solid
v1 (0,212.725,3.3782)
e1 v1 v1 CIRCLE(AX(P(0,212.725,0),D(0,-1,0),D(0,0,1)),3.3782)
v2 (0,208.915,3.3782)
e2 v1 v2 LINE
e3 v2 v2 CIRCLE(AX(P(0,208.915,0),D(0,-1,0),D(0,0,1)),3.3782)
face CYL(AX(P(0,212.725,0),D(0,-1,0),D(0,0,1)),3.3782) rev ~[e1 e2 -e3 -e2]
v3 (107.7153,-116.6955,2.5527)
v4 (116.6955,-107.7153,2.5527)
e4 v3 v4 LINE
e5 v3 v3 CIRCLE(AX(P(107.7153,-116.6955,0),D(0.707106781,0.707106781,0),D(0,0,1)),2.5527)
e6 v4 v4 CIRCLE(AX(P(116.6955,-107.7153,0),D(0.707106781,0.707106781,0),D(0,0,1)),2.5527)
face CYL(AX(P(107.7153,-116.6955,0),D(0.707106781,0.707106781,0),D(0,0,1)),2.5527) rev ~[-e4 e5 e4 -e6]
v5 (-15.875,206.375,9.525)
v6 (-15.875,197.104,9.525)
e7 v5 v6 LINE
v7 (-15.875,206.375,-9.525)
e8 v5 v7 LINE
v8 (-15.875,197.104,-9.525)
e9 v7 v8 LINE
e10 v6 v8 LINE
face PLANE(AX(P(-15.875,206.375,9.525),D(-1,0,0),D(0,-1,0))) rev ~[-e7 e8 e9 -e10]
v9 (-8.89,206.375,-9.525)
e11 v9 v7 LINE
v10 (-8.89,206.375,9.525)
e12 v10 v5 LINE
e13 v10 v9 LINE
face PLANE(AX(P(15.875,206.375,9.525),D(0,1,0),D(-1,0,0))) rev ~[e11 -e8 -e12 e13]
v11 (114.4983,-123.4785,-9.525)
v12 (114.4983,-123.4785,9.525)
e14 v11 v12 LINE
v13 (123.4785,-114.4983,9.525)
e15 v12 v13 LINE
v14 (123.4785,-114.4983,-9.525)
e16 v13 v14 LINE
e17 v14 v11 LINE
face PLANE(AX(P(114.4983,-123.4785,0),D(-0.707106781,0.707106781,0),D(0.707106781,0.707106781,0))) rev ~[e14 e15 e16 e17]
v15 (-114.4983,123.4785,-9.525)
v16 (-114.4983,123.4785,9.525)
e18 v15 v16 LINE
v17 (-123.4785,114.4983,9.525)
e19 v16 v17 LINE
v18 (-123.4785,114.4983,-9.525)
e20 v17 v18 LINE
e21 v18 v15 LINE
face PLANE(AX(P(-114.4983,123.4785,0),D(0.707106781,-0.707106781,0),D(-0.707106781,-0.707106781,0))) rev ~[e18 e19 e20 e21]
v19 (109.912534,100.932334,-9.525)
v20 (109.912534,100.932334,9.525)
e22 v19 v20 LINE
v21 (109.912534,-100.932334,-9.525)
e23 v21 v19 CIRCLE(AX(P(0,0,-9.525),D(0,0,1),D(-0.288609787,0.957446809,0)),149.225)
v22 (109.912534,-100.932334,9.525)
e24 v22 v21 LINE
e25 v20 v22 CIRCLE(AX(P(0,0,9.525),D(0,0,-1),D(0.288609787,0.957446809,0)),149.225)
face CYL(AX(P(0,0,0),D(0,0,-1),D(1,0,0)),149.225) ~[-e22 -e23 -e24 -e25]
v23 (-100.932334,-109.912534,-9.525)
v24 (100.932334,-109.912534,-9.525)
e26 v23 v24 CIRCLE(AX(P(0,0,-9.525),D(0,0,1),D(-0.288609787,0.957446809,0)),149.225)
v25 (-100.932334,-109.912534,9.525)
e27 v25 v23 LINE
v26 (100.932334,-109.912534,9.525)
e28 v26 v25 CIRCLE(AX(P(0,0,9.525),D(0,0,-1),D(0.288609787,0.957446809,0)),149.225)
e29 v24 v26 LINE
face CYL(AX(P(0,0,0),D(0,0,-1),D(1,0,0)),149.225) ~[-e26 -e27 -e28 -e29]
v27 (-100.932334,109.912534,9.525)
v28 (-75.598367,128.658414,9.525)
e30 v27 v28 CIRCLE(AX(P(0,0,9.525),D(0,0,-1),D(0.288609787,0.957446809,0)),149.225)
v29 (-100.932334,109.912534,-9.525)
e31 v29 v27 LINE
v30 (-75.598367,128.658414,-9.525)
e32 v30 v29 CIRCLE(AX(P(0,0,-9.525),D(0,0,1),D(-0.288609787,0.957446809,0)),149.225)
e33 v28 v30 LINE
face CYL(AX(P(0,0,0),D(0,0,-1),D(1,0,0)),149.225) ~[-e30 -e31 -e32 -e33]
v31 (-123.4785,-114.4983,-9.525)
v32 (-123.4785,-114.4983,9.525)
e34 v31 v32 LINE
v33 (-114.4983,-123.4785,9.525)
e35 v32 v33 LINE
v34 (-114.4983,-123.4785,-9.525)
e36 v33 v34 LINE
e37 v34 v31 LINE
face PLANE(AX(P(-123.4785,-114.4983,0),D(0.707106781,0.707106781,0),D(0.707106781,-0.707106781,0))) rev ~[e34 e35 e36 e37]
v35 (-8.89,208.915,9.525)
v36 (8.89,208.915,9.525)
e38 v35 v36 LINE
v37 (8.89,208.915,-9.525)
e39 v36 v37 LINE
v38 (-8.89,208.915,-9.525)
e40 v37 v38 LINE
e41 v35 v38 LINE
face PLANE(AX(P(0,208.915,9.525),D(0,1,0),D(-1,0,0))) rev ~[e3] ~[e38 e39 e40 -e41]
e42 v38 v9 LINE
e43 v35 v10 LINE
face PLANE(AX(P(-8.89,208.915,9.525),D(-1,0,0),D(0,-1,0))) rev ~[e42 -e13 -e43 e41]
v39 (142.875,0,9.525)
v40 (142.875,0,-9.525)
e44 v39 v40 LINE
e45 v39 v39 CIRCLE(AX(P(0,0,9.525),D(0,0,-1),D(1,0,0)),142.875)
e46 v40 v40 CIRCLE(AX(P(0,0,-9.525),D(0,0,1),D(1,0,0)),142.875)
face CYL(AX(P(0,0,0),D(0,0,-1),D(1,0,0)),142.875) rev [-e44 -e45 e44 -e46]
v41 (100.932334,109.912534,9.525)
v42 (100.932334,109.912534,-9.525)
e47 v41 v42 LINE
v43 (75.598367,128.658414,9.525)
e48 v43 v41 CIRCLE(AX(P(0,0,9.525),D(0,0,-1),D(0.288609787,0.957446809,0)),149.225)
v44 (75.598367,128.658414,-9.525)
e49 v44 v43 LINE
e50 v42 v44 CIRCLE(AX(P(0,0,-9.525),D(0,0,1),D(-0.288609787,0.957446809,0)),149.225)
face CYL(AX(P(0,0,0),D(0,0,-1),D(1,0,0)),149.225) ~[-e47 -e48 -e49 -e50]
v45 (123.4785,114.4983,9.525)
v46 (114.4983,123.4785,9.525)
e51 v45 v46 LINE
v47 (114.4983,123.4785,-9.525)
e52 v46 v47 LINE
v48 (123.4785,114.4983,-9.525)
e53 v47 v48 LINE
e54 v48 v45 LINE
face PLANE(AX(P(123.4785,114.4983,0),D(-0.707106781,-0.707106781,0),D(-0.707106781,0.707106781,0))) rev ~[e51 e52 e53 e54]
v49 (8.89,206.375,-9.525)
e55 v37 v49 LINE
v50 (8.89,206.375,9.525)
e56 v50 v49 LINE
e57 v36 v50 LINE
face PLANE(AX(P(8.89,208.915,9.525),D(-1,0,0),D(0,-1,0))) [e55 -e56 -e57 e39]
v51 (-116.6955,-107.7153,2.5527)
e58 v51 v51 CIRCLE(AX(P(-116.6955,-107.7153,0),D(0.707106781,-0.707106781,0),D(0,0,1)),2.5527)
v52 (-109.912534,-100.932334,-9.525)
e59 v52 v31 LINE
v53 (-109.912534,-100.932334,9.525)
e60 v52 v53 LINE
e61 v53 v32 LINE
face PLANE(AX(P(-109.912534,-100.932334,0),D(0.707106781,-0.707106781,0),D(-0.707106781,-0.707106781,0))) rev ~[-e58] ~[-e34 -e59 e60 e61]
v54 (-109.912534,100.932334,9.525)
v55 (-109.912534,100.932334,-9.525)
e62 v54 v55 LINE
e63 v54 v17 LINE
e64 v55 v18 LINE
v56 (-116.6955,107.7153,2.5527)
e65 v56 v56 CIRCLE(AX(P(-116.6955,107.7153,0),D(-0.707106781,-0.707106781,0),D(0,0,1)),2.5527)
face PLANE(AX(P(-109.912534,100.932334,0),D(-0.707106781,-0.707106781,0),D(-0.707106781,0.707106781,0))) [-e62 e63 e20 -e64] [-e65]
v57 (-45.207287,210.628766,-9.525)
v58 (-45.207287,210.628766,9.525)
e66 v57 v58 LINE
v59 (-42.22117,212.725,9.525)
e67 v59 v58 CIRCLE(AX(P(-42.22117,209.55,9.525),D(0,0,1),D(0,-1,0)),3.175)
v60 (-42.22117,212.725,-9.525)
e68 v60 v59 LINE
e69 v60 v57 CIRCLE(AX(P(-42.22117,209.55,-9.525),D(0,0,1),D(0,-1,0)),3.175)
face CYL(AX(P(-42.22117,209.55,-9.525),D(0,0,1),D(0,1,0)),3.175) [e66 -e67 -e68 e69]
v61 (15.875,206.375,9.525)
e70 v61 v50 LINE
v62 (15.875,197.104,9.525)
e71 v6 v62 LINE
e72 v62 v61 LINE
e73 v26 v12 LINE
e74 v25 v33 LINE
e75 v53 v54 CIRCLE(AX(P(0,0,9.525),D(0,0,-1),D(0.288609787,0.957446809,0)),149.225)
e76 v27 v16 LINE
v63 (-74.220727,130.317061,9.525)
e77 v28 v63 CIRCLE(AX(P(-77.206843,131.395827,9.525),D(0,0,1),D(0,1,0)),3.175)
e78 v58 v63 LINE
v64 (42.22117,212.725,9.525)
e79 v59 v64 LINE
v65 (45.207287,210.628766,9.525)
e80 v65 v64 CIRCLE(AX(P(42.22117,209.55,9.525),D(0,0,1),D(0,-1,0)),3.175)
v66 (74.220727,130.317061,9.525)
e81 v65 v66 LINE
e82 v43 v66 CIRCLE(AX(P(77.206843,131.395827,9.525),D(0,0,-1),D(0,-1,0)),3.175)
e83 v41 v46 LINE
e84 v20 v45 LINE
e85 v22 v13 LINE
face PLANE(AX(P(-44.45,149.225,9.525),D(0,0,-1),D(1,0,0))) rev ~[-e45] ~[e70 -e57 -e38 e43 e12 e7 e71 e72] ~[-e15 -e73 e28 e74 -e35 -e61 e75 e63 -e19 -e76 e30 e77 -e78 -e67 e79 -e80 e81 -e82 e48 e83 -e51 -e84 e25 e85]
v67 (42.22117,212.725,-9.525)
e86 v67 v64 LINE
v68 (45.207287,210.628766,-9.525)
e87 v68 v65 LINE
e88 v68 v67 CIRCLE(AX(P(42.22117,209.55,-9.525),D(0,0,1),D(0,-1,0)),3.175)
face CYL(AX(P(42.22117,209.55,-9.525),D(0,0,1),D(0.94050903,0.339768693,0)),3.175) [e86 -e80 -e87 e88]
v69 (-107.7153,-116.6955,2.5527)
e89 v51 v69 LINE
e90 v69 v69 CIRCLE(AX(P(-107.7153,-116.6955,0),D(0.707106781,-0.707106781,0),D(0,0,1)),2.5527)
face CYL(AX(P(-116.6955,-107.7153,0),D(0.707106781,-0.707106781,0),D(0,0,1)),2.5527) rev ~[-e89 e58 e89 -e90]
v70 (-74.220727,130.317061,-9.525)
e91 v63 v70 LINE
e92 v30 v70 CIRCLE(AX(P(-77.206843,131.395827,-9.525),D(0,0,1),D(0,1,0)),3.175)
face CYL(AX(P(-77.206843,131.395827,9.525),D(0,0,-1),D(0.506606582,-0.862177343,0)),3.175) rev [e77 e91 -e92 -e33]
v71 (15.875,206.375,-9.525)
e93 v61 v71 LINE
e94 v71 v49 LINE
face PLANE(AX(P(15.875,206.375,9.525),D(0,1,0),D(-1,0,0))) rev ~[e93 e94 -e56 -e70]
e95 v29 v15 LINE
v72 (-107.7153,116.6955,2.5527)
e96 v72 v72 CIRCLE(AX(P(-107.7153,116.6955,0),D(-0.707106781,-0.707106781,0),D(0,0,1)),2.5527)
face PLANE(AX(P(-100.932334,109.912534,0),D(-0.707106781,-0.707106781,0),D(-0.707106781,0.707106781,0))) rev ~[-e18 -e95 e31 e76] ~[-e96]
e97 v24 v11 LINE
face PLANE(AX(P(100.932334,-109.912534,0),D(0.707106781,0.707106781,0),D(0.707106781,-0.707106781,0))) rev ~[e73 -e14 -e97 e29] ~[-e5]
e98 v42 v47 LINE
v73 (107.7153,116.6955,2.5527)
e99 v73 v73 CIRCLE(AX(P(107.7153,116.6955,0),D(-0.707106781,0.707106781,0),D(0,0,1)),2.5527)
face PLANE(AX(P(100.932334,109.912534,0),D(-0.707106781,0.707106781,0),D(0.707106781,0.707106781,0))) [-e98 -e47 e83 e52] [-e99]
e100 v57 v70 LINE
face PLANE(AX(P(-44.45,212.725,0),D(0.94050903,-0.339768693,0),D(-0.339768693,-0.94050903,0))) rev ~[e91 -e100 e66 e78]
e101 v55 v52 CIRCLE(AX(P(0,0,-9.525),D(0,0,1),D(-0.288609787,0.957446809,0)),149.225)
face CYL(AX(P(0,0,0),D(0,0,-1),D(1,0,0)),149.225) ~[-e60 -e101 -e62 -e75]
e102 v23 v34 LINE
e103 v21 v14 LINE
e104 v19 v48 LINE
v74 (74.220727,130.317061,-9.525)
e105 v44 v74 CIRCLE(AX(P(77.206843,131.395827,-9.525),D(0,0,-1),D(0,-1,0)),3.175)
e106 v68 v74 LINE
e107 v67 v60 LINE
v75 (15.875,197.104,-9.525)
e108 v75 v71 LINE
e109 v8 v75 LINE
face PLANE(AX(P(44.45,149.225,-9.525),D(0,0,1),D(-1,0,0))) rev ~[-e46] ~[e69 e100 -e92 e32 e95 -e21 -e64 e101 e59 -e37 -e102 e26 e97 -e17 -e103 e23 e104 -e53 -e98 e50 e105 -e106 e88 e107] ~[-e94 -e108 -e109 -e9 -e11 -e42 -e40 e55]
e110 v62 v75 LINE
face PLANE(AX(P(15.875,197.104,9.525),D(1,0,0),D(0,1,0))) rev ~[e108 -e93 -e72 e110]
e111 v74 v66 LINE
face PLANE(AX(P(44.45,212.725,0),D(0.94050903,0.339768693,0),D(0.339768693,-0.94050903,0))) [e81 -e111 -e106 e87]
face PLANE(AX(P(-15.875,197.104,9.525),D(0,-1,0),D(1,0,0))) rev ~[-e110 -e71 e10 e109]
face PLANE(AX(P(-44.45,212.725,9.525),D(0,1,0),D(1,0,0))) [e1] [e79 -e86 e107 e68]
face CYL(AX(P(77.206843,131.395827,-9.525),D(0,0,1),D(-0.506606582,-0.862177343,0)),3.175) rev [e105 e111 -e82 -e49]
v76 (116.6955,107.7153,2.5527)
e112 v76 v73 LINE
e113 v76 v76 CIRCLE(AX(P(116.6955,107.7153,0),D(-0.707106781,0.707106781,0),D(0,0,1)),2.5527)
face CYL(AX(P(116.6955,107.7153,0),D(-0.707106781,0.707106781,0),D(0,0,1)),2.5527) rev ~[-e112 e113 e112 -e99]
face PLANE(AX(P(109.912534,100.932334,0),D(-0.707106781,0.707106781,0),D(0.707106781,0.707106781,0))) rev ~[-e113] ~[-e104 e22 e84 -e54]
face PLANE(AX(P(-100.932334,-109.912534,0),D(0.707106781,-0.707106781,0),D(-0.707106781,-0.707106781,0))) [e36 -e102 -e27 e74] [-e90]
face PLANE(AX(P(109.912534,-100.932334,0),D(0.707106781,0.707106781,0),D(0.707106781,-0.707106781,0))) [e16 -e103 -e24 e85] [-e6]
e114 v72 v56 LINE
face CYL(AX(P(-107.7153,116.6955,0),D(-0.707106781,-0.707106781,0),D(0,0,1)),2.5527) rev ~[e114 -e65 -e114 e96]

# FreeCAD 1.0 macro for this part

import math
import FreeCAD as App
import Part
import Sketcher

V = App.Vector
Q = App.Units.Quantity


def edges_at(feature, points):
    """Names of the edges that pass closest to the given points."""
    edges = feature.Shape.Edges
    near = lambda p: min(range(len(edges)), key=lambda i: edges[i].distToShape(Part.Vertex(*p))[0])
    return sorted({f"Edge{near(p) + 1}" for p in points})


def add_polygon(sketch, points):
    """Adds a closed chain of lines whose ends are joined by coincident constraints."""
    first, n = sketch.GeometryCount, len(points)
    for a, b in zip(points, points[1:] + points[:1]):
        sketch.addGeometry(Part.LineSegment(App.Vector(*a, 0), App.Vector(*b, 0)), False)
    for i in range(n):
        sketch.addConstraint(Sketcher.Constraint("Coincident", first + i, 2, first + (i + 1) % n, 1))

doc = App.newDocument("Part")
body = doc.addObject("PartDesign::Body", "Body")

# Sketch on XY plane
sketch1 = body.newObject("Sketcher::SketchObject", "Sketch")
sketch1.AttachmentSupport = (doc.getObject("XY_Plane"), [""])
sketch1.MapMode = "FlatFace"
sketch1.addGeometry([
    Part.Circle(V(0, 0, 0), V(0, 0, 1), 149),
    Part.Circle(V(0, 0, 0), V(0, 0, 1), 143),
], False)
sketch1.addConstraint([
    Sketcher.Constraint("Coincident", 0, 3, -1, 1),
    Sketcher.Constraint("Coincident", 1, 3, -1, 1),
    Sketcher.Constraint("Diameter", 0, Q("11.75 in")),
    Sketcher.Constraint("Diameter", 1, Q("11.25 in")),
])
pad1 = body.newObject("PartDesign::Pad", "Pad")
pad1.Profile = sketch1
pad1.Length = Q("0.75 in")
pad1.Midplane = True

# Sketch on XY plane
sketch2 = body.newObject("Sketcher::SketchObject", "Sketch001")
sketch2.AttachmentSupport = (doc.getObject("XY_Plane"), [""])
sketch2.MapMode = "FlatFace"
add_polygon(sketch2, [(-44, 143), (44, 143), (44, 149), (-44, 149)])  # lines 0-3
sketch2.addConstraint([
    Sketcher.Constraint("Horizontal", 0),
    Sketcher.Constraint("Vertical", 1),
    Sketcher.Constraint("Horizontal", 2),
    Sketcher.Constraint("Vertical", 3),
    Sketcher.Constraint("DistanceY", 1, 1, 1, 2, Q("0.25 in")),
    Sketcher.Constraint("DistanceX", -1, 1, 0, 2, Q("1.75 in")),
    Sketcher.Constraint("DistanceX", 2, 2, -1, 1, Q("1.75 in")),
    Sketcher.Constraint("DistanceY", -1, 1, 0, 2, Q("5.625 in")),
])
pad2 = body.newObject("PartDesign::Pad", "Pad001")
pad2.Profile = sketch2
pad2.Length = Q("0.75 in")
pad2.Midplane = True

# Sketch on XZ plane
sketch3 = body.newObject("Sketcher::SketchObject", "Sketch002")
sketch3.AttachmentSupport = (doc.getObject("XZ_Plane"), [""])
sketch3.MapMode = "FlatFace"
sketch3.AttachmentOffset = App.Placement(V(0, 0, -5.875 * 25.4), App.Rotation())
add_polygon(sketch3, [(44, -10), (-44, -10), (-44, 10), (44, 10)])  # lines 0-3
sketch3.addConstraint([
    Sketcher.Constraint("Horizontal", 0),
    Sketcher.Constraint("Vertical", 1),
    Sketcher.Constraint("Horizontal", 2),
    Sketcher.Constraint("Vertical", 3),
    Sketcher.Constraint("Symmetric", 0, 2, 2, 2, -1, 1),
    Sketcher.Constraint("DistanceX", 0, 2, 0, 1, Q("3.5 in")),
    Sketcher.Constraint("DistanceY", 1, 1, 1, 2, Q("0.75 in")),
])
pad3 = body.newObject("PartDesign::Pad", "Pad002")
pad3.Profile = sketch3
pad3.Length = Q("2.5 in")
pad3.Reversed = True

# Sketch on XY plane
sketch4 = body.newObject("Sketcher::SketchObject", "Sketch003")
sketch4.AttachmentSupport = (doc.getObject("XY_Plane"), [""])
sketch4.MapMode = "FlatFace"
sketch4.AttachmentOffset = App.Placement(V(0, 0, 0.375 * 25.4), App.Rotation())
add_polygon(sketch4, [(-16, 206), (-16, 197), (16, 197), (16, 206)])  # lines 0-3
sketch4.addConstraint([
    Sketcher.Constraint("Vertical", 0),
    Sketcher.Constraint("Horizontal", 1),
    Sketcher.Constraint("Vertical", 2),
    Sketcher.Constraint("Horizontal", 3),
    Sketcher.Constraint("DistanceX", 1, 1, 1, 2, Q("1.25 in")),
    Sketcher.Constraint("DistanceY", 0, 2, 0, 1, Q("0.365 in")),
    Sketcher.Constraint("DistanceY", -1, 1, 0, 2, Q("7.76 in")),
    Sketcher.Constraint("DistanceX", 0, 2, -1, 1, Q("0.625 in")),
])
pocket1 = body.newObject("PartDesign::Pocket", "Pocket")
pocket1.Profile = sketch4
pocket1.Type = "ThroughAll"

# Sketch on XZ plane
sketch5 = body.newObject("Sketcher::SketchObject", "Sketch004")
sketch5.AttachmentSupport = (doc.getObject("XZ_Plane"), [""])
sketch5.MapMode = "FlatFace"
sketch5.AttachmentOffset = App.Placement(V(0, 0, -8.375 * 25.4), App.Rotation())
sketch5.addGeometry(Part.Circle(V(0, 0, 0), V(0, 0, 1), 3.4), False)
sketch5.addConstraint([
    Sketcher.Constraint("Coincident", 0, 3, -1, 1),
    Sketcher.Constraint("Diameter", 0, Q("0.266 in")),
])
doc.recompute()
hole = body.newObject("PartDesign::Hole", "Hole")
hole.Profile = sketch5
hole.ThreadType = "None"
hole.Diameter = Q("0.266 in")
hole.DepthType = "Dimension"
hole.Depth = Q("0.25 in")
hole.DrillPoint = "Flat"
hole.Reversed = True

# Sketch on XY plane
sketch6 = body.newObject("Sketcher::SketchObject", "Sketch005")
sketch6.AttachmentSupport = (doc.getObject("XY_Plane"), [""])
sketch6.MapMode = "FlatFace"
sketch6.addGeometry([
    Part.LineSegment(V(-101, 110, 0), V(-114, 123, 0)),
    Part.LineSegment(V(-114, 123, 0), V(-123, 114, 0)),
    Part.LineSegment(V(-123, 114, 0), V(-110, 101, 0)),
    Part.ArcOfCircle(Part.Circle(V(0, 0, 0), V(0, 0, 1), 149), math.radians(132.56), math.radians(137.44)),
], False)
sketch6.addConstraint([
    Sketcher.Constraint("Coincident", 0, 2, 1, 1),
    Sketcher.Constraint("Coincident", 1, 2, 2, 1),
    Sketcher.Constraint("Coincident", 2, 2, 3, 2),
    Sketcher.Constraint("Coincident", 3, 1, 0, 1),
    Sketcher.Constraint("Coincident", 3, 3, -1, 1),
    Sketcher.Constraint("Perpendicular", 0, 1),
    Sketcher.Constraint("Perpendicular", 1, 2),
    Sketcher.Constraint("Equal", 0, 2),
    Sketcher.Constraint("Angle", 0, Q("135 deg")),
    Sketcher.Constraint("Radius", 3, Q("5.875 in")),
    Sketcher.Constraint("Distance", 1, Q("0.5 in")),
    Sketcher.Constraint("DistanceX", 0, 2, -1, 1, Q("4.5078 in")),
])
pad4 = body.newObject("PartDesign::Pad", "Pad003")
pad4.Profile = sketch6
pad4.Length = Q("0.75 in")
pad4.Midplane = True

# Sketch on an angled plane
sketch7 = body.newObject("Sketcher::SketchObject", "Sketch006")
sketch7.Placement = App.Placement(V(4.4901, 4.4901, 0), App.Rotation(V(-0.707106781, 0.707106781, 0), V(0, 0, 0.999999999), V(0.707106781, 0.707106781, 0), "ZXY"))
sketch7.addGeometry(Part.Circle(V(158.7, 0, 0), V(0, 0, 1), 2.6), False)
sketch7.addConstraint([
    Sketcher.Constraint("PointOnObject", 0, 3, -1),
    Sketcher.Constraint("Diameter", 0, Q("0.201 in")),
    Sketcher.Constraint("DistanceX", -1, 1, 0, 3, 158.6824),
])
doc.recompute()
hole2 = body.newObject("PartDesign::Hole", "Hole001")
hole2.Profile = sketch7
hole2.ThreadType = "None"
hole2.Diameter = Q("0.201 in")
hole2.DepthType = "Dimension"
hole2.Depth = Q("0.5 in")
hole2.DrillPoint = "Flat"
doc.recompute()

polarpattern = body.newObject("PartDesign::PolarPattern", "PolarPattern")
polarpattern.Originals = [pad4, hole2]
polarpattern.Axis = (doc.getObject("Z_Axis"), [""])
polarpattern.Angle = 360
polarpattern.Occurrences = 4
body.Tip = polarpattern

# Sketch on XY plane
sketch8 = body.newObject("Sketcher::SketchObject", "Sketch007")
sketch8.AttachmentSupport = (doc.getObject("XY_Plane"), [""])
sketch8.MapMode = "FlatFace"
sketch8.AttachmentOffset = App.Placement(V(0, 0, 0.375 * 25.4), App.Rotation())
add_polygon(sketch8, [(-8.9, 208.9), (-8.9, 206.4), (8.9, 206.4), (8.9, 208.9)])  # lines 0-3
sketch8.addConstraint([
    Sketcher.Constraint("Vertical", 0),
    Sketcher.Constraint("Horizontal", 1),
    Sketcher.Constraint("Vertical", 2),
    Sketcher.Constraint("Horizontal", 3),
    Sketcher.Constraint("DistanceY", 0, 2, 0, 1, Q("0.1 in")),
    Sketcher.Constraint("DistanceX", 0, 2, -1, 1, Q("0.35 in")),
    Sketcher.Constraint("DistanceX", -1, 1, 1, 2, Q("0.35 in")),
    Sketcher.Constraint("DistanceY", -1, 1, 0, 2, Q("8.125 in")),
])
pocket2 = body.newObject("PartDesign::Pocket", "Pocket001")
pocket2.Profile = sketch8
pocket2.Type = "ThroughAll"

# Sketch on XY plane
sketch9 = body.newObject("Sketcher::SketchObject", "Sketch008")
sketch9.AttachmentSupport = (doc.getObject("XY_Plane"), [""])
sketch9.MapMode = "FlatFace"
sketch9.addGeometry([
    Part.ArcOfCircle(Part.Circle(V(0, 0, 0), V(0, 0, 1), 149.23), math.radians(106.77), math.radians(107.33)),  # 0
    Part.LineSegment(V(-43.07, 142.88, 0), V(-44.45, 142.88, 0)),  # 1
    Part.LineSegment(V(-44.45, 142.88, 0), V(-44.45, 142.45, 0)),  # 2
    Part.LineSegment(V(44.45, 142.45, 0), V(44.45, 142.88, 0)),  # 3
    Part.LineSegment(V(44.45, 142.88, 0), V(43.07, 142.88, 0)),  # 4
    Part.ArcOfCircle(Part.Circle(V(0, 0, 0), V(0, 0, 1), 149.22), math.radians(72.67), math.radians(73.23)),  # 5
], False)
sketch9.addConstraint([
    Sketcher.Constraint("Coincident", 0, 1, 1, 1),
    Sketcher.Constraint("Coincident", 1, 2, 2, 1),
    Sketcher.Constraint("Coincident", 2, 2, 0, 2),
    Sketcher.Constraint("Coincident", 3, 2, 4, 1),
    Sketcher.Constraint("Coincident", 4, 2, 5, 2),
    Sketcher.Constraint("Coincident", 5, 1, 3, 1),
    Sketcher.Constraint("Horizontal", 1),
    Sketcher.Constraint("Vertical", 2),
    Sketcher.Constraint("Vertical", 3),
    Sketcher.Constraint("Horizontal", 4),
    Sketcher.Constraint("Coincident", 0, 3, -1, 1),
    Sketcher.Constraint("Coincident", 5, 3, -1, 1),
    Sketcher.Constraint("Equal", 0, 5),
    Sketcher.Constraint("Symmetric", 1, 2, 3, 2, -2),
    Sketcher.Constraint("Radius", 0, Q("5.875 in")),
    Sketcher.Constraint("DistanceX", 1, 2, 3, 2, Q("3.5 in")),
    Sketcher.Constraint("DistanceY", 2, 2, 2, 1, Q("0.0167 in")),
])
pad5 = body.newObject("PartDesign::Pad", "Pad004")
pad5.Profile = sketch9
pad5.Length = Q("0.75 in")
pad5.Midplane = True

# Sketch on XY plane
sketch10 = body.newObject("Sketcher::SketchObject", "Sketch009")
sketch10.AttachmentSupport = (doc.getObject("XY_Plane"), [""])
sketch10.MapMode = "FlatFace"
sketch10.addGeometry([
    Part.LineSegment(V(44.45, 212.725, 0), V(44.45, 142.451, 0)),  # 0
    Part.ArcOfCircle(Part.Circle(V(0.000781, 0.001065, 0), V(0, 0, 1), 149.223715), math.radians(60.000047), math.radians(72.670304)),  # 1
    Part.LineSegment(V(74.6125, 129.2326, 0), V(44.45, 212.725, 0)),  # 2
    Part.ArcOfCircle(Part.Circle(V(0.00053, -0.00121, 0), V(0, 0, 1), 149.226277), math.radians(107.329916), math.radians(119.999952)),  # 3
    Part.LineSegment(V(-44.45, 142.451, 0), V(-44.45, 212.725, 0)),  # 4
    Part.LineSegment(V(-44.45, 212.725, 0), V(-74.6125, 129.2326, 0)),  # 5
], False)
sketch10.addConstraint([
    Sketcher.Constraint("Coincident", 0, 2, 1, 2),
    Sketcher.Constraint("Coincident", 1, 1, 2, 1),
    Sketcher.Constraint("Coincident", 2, 2, 0, 1),
    Sketcher.Constraint("Coincident", 3, 1, 4, 1),
    Sketcher.Constraint("Coincident", 4, 2, 5, 1),
    Sketcher.Constraint("Coincident", 5, 2, 3, 2),
    Sketcher.Constraint("Vertical", 0),
    Sketcher.Constraint("Vertical", 4),
    Sketcher.Constraint("Symmetric", 0, 2, 3, 1, -2),
    Sketcher.Constraint("Symmetric", 1, 1, 5, 2, -2),
    Sketcher.Constraint("Symmetric", 1, 3, 3, 3, -1),
    Sketcher.Constraint("Horizontal", 2, 2, 4, 2),
    Sketcher.Constraint("DistanceX", 3, 1, 0, 2, Q("3.5 in")),
    Sketcher.Constraint("Radius", 1, 149.2237),
    Sketcher.Constraint("Radius", 3, 149.2263),
    Sketcher.Constraint("DistanceY", 0, 2, 0, 1, Q("2.7667 in")),
    Sketcher.Constraint("DistanceX", -1, 1, 1, 1, Q("2.9375 in")),
])
pad6 = body.newObject("PartDesign::Pad", "Pad005")
pad6.Profile = sketch10
pad6.Length = Q("0.75 in")
pad6.Midplane = True
doc.recompute()

fillet = body.newObject("PartDesign::Fillet", "Fillet")
fillet.Base = (pad6, edges_at(pad6, [(-74.612, 129.233, 0), (74.612, 129.233, 0)]))
fillet.Radius = Q("0.125 in")
doc.recompute()

fillet2 = body.newObject("PartDesign::Fillet", "Fillet001")
fillet2.Base = (fillet, edges_at(fillet, [(-44.45, 212.725, 0), (44.45, 212.725, 0)]))
fillet2.Radius = Q("0.125 in")

doc.recompute()
